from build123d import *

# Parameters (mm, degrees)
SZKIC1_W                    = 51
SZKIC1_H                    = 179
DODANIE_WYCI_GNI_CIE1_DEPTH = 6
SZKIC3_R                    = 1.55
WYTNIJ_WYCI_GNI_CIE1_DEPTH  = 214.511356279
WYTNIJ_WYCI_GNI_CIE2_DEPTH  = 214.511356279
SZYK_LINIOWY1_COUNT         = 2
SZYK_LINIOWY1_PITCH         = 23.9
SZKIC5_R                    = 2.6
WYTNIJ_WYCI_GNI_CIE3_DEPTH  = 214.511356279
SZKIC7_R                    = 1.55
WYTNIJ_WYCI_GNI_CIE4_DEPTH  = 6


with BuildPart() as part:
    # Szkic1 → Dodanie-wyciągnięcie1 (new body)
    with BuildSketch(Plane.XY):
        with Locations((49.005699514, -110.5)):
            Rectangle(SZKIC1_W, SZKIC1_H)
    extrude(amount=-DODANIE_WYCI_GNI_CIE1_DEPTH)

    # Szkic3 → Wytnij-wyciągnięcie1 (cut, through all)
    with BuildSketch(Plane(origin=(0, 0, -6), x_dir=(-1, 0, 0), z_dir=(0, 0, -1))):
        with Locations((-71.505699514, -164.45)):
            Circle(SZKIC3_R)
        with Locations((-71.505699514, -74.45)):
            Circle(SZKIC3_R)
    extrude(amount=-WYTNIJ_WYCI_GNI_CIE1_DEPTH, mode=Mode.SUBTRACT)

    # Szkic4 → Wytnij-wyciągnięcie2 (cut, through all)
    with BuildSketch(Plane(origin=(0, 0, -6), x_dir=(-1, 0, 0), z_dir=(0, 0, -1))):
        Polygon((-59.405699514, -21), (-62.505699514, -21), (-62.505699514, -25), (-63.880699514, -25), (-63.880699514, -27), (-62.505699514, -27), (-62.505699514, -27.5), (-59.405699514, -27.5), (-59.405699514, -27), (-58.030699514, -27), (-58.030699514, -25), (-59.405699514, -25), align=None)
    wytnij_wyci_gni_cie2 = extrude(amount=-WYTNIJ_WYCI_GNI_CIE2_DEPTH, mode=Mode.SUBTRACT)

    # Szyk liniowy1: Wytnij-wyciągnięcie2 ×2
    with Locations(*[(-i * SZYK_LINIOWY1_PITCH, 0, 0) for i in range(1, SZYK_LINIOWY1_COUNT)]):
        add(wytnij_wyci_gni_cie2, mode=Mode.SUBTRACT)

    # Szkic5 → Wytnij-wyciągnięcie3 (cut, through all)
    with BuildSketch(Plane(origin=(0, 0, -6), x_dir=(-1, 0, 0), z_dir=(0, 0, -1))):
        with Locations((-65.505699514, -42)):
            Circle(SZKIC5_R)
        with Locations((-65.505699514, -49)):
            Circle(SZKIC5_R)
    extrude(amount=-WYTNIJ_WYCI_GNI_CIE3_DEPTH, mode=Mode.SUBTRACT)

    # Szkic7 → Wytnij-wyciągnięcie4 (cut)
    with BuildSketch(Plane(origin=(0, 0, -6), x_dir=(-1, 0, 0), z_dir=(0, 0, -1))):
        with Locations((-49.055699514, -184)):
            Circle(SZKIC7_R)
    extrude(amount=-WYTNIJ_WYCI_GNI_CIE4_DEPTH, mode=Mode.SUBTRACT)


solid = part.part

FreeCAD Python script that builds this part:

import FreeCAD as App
import Part
import Sketcher
from FreeCAD import Vector

doc = App.newDocument("Part")
params = doc.addObject("Spreadsheet::Sheet", "Params")
for row, (alias, value) in enumerate([
    ("sketch1_width", "51 mm"),
    ("sketch1_height", "179 mm"),
    ("pad1_length", "6 mm"),
    ("sketch2_diameter", "3.1 mm"),
    ("sketch3_height", "4 mm"),
    ("sketch3_height2", "2 mm"),
    ("sketch3_width", "3.1 mm"),
    ("sketch3_height3", "0.5 mm"),
    ("linearpattern_pitch", "23.9 mm"),
    ("sketch4_diameter", "5.2 mm"),
    ("sketch5_diameter", "3.1 mm"),
    ("pocket4_length", "6 mm"),
], start=1):
    params.set(f"A{row}", alias)
    params.set(f"B{row}", "=" + value)
    params.setAlias(f"B{row}", alias)

body = doc.addObject("PartDesign::Body", "Body")

sketch1 = body.newObject("Sketcher::SketchObject", "Sketch")
sketch1.AttachmentSupport = (doc.getObject("XY_Plane"), [""])
sketch1.MapMode = "FlatFace"
sketch1.addGeometry([
    Part.LineSegment(Vector(24, -21, 0), Vector(24, -200, 0)),
    Part.LineSegment(Vector(24, -200, 0), Vector(75, -200, 0)),
    Part.LineSegment(Vector(75, -200, 0), Vector(75, -21, 0)),
    Part.LineSegment(Vector(75, -21, 0), Vector(24, -21, 0)),
], False)
sketch1.addConstraint([
    Sketcher.Constraint("Coincident", 0, 2, 1, 1),
    Sketcher.Constraint("Coincident", 1, 2, 2, 1),
    Sketcher.Constraint("Coincident", 2, 2, 3, 1),
    Sketcher.Constraint("Coincident", 3, 2, 0, 1),
    Sketcher.Constraint("Vertical", 0),
    Sketcher.Constraint("Horizontal", 1),
    Sketcher.Constraint("Vertical", 2),
    Sketcher.Constraint("Horizontal", 3),
    Sketcher.Constraint("DistanceX", 1, 1, 1, 2, 51.0),
    Sketcher.Constraint("DistanceY", 0, 2, 0, 1, 179.0),
    Sketcher.Constraint("DistanceY", 0, 2, -1, 1, 200.0),
    Sketcher.Constraint("DistanceX", -1, 1, 0, 2, 23.5057),
])
sketch1.setExpression("Constraints[8]", "Params.sketch1_width")
sketch1.setExpression("Constraints[9]", "Params.sketch1_height")
pad1 = body.newObject("PartDesign::Pad", "Pad")
pad1.Profile = sketch1
pad1.setExpression("Length", "Params.pad1_length")
pad1.Reversed = True

sketch2 = body.newObject("Sketcher::SketchObject", "Sketch001")
sketch2.AttachmentSupport = (doc.getObject("XY_Plane"), [""])
sketch2.MapMode = "FlatFace"
sketch2.AttachmentOffset = App.Placement(Vector(0, 0, -6), App.Rotation())
sketch2.addGeometry([
    Part.Circle(Vector(71.5, -164.4, 0), Vector(0, 0, 1), 1.6),
    Part.Circle(Vector(71.5, -74.5, 0), Vector(0, 0, 1), 1.6),
], False)
sketch2.addConstraint([
    Sketcher.Constraint("Equal", 0, 1),
    Sketcher.Constraint("Vertical", 0, 3, 1, 3),
    Sketcher.Constraint("Diameter", 0, 3.1),
    Sketcher.Constraint("DistanceY", 0, 3, 1, 3, 90.0),
    Sketcher.Constraint("DistanceY", 0, 3, -1, 1, 164.45),
    Sketcher.Constraint("DistanceX", -1, 1, 0, 3, 71.5057),
])
sketch2.setExpression("Constraints[2]", "Params.sketch2_diameter")
pocket1 = body.newObject("PartDesign::Pocket", "Pocket")
pocket1.Profile = sketch2
pocket1.Type = "ThroughAll"
pocket1.Reversed = True

sketch3 = body.newObject("Sketcher::SketchObject", "Sketch002")
sketch3.AttachmentSupport = (doc.getObject("XY_Plane"), [""])
sketch3.MapMode = "FlatFace"
sketch3.AttachmentOffset = App.Placement(Vector(0, 0, -6), App.Rotation())
sketch3.addGeometry([
    Part.LineSegment(Vector(59.4, -21, 0), Vector(62.5, -21, 0)),
    Part.LineSegment(Vector(62.5, -21, 0), Vector(62.5, -25, 0)),
    Part.LineSegment(Vector(62.5, -25, 0), Vector(63.9, -25, 0)),
    Part.LineSegment(Vector(63.9, -25, 0), Vector(63.9, -27, 0)),
    Part.LineSegment(Vector(63.9, -27, 0), Vector(62.5, -27, 0)),
    Part.LineSegment(Vector(62.5, -27, 0), Vector(62.5, -27.5, 0)),
    Part.LineSegment(Vector(62.5, -27.5, 0), Vector(59.4, -27.5, 0)),
    Part.LineSegment(Vector(59.4, -27.5, 0), Vector(59.4, -27, 0)),
    Part.LineSegment(Vector(59.4, -27, 0), Vector(58, -27, 0)),
    Part.LineSegment(Vector(58, -27, 0), Vector(58, -25, 0)),
    Part.LineSegment(Vector(58, -25, 0), Vector(59.4, -25, 0)),
    Part.LineSegment(Vector(59.4, -25, 0), Vector(59.4, -21, 0)),
], False)
sketch3.addConstraint([
    Sketcher.Constraint("Coincident", 0, 2, 1, 1),
    Sketcher.Constraint("Coincident", 1, 2, 2, 1),
    Sketcher.Constraint("Coincident", 2, 2, 3, 1),
    Sketcher.Constraint("Coincident", 3, 2, 4, 1),
    Sketcher.Constraint("Coincident", 4, 2, 5, 1),
    Sketcher.Constraint("Coincident", 5, 2, 6, 1),
    Sketcher.Constraint("Coincident", 6, 2, 7, 1),
    Sketcher.Constraint("Coincident", 7, 2, 8, 1),
    Sketcher.Constraint("Coincident", 8, 2, 9, 1),
    Sketcher.Constraint("Coincident", 9, 2, 10, 1),
    Sketcher.Constraint("Coincident", 10, 2, 11, 1),
    Sketcher.Constraint("Coincident", 11, 2, 0, 1),
    Sketcher.Constraint("Horizontal", 0),
    Sketcher.Constraint("Vertical", 1),
    Sketcher.Constraint("Horizontal", 2),
    Sketcher.Constraint("Vertical", 3),
    Sketcher.Constraint("Horizontal", 4),
    Sketcher.Constraint("Vertical", 5),
    Sketcher.Constraint("Horizontal", 6),
    Sketcher.Constraint("Vertical", 7),
    Sketcher.Constraint("Horizontal", 8),
    Sketcher.Constraint("Vertical", 9),
    Sketcher.Constraint("Horizontal", 10),
    Sketcher.Constraint("Vertical", 11),
    Sketcher.Constraint("Horizontal", 4, 2, 7, 2),
    Sketcher.Constraint("Horizontal", 2, 2, 9, 2),
    Sketcher.Constraint("Vertical", 1, 2, 4, 2),
    Sketcher.Constraint("Vertical", 7, 2, 10, 2),
    Sketcher.Constraint("Equal", 4, 8),
    Sketcher.Constraint("DistanceY", 1, 2, 1, 1, 4.0),
    Sketcher.Constraint("DistanceY", 3, 2, 3, 1, 2.0),
    Sketcher.Constraint("DistanceX", 0, 1, 0, 2, 3.1),
    Sketcher.Constraint("DistanceY", 5, 2, 5, 1, 0.5),
    Sketcher.Constraint("DistanceY", 0, 2, -1, 1, 21.0),
    Sketcher.Constraint("DistanceX", 2, 1, 2, 2, 1.375),
    Sketcher.Constraint("DistanceX", -1, 1, 0, 2, 62.5057),
])
sketch3.setExpression("Constraints[29]", "Params.sketch3_height")
sketch3.setExpression("Constraints[30]", "Params.sketch3_height2")
sketch3.setExpression("Constraints[31]", "Params.sketch3_width")
sketch3.setExpression("Constraints[32]", "Params.sketch3_height3")
pocket2 = body.newObject("PartDesign::Pocket", "Pocket001")
pocket2.Profile = sketch3
pocket2.Type = "ThroughAll"
pocket2.Reversed = True
doc.recompute()

linearpattern = body.newObject("PartDesign::LinearPattern", "LinearPattern")
linearpattern.Originals = [pocket2]
linearpattern.Direction = (doc.getObject("X_Axis"), [""])
linearpattern.Mode = "offset"
linearpattern.setExpression("Offset", "Params.linearpattern_pitch")
linearpattern.Occurrences = 2
linearpattern.Reversed = True
body.Tip = linearpattern

sketch4 = body.newObject("Sketcher::SketchObject", "Sketch003")
sketch4.AttachmentSupport = (doc.getObject("XY_Plane"), [""])
sketch4.MapMode = "FlatFace"
sketch4.AttachmentOffset = App.Placement(Vector(0, 0, -6), App.Rotation())
sketch4.addGeometry([
    Part.Circle(Vector(65.5, -42, 0), Vector(0, 0, 1), 2.6),
    Part.Circle(Vector(65.5, -49, 0), Vector(0, 0, 1), 2.6),
], False)
sketch4.addConstraint([
    Sketcher.Constraint("Equal", 0, 1),
    Sketcher.Constraint("Vertical", 0, 3, 1, 3),
    Sketcher.Constraint("Diameter", 0, 5.2),
    Sketcher.Constraint("DistanceY", 0, 3, -1, 1, 42.0),
    Sketcher.Constraint("DistanceY", 1, 3, -1, 1, 49.0),
    Sketcher.Constraint("DistanceX", -1, 1, 0, 3, 65.5057),
])
sketch4.setExpression("Constraints[2]", "Params.sketch4_diameter")
pocket3 = body.newObject("PartDesign::Pocket", "Pocket002")
pocket3.Profile = sketch4
pocket3.Type = "ThroughAll"
pocket3.Reversed = True

sketch5 = body.newObject("Sketcher::SketchObject", "Sketch004")
sketch5.AttachmentSupport = (doc.getObject("XY_Plane"), [""])
sketch5.MapMode = "FlatFace"
sketch5.AttachmentOffset = App.Placement(Vector(0, 0, -6), App.Rotation())
sketch5.addGeometry(Part.Circle(Vector(49.1, -184, 0), Vector(0, 0, 1), 1.6), False)
sketch5.addConstraint([
    Sketcher.Constraint("Diameter", 0, 3.1),
    Sketcher.Constraint("DistanceY", 0, 3, -1, 1, 184.0),
    Sketcher.Constraint("DistanceX", -1, 1, 0, 3, 49.0557),
])
sketch5.setExpression("Constraints[0]", "Params.sketch5_diameter")
pocket4 = body.newObject("PartDesign::Pocket", "Pocket003")
pocket4.Profile = sketch5
pocket4.setExpression("Length", "Params.pocket4_length")
pocket4.Reversed = True

doc.recompute()
